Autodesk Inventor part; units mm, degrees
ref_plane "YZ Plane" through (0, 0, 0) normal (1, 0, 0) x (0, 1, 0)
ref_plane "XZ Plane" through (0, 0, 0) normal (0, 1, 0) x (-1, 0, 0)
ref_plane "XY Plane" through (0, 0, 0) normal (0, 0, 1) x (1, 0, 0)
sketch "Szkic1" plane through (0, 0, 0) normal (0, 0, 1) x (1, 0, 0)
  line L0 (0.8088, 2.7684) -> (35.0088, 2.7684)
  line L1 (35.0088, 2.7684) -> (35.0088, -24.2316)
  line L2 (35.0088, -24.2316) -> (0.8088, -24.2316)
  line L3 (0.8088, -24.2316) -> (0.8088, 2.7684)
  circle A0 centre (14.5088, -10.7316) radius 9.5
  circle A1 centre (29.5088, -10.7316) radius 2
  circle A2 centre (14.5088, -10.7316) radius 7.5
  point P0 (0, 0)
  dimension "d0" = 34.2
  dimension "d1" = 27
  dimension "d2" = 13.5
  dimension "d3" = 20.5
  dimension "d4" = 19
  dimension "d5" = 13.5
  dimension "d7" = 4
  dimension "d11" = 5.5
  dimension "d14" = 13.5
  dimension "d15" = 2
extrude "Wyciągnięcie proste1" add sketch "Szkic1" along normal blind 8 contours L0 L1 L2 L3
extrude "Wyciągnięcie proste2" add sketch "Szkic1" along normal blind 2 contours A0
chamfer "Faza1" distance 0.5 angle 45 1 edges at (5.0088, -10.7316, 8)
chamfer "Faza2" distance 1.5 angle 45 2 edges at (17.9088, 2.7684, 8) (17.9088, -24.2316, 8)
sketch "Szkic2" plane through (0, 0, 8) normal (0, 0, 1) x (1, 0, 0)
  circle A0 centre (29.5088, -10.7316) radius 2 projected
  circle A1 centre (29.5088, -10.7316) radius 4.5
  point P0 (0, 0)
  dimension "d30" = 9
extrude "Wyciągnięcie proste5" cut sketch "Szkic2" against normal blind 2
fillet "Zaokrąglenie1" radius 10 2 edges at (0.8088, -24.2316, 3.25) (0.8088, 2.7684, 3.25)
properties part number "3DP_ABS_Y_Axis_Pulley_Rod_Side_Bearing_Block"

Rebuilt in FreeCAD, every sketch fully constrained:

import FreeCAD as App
import Part
import Sketcher
from FreeCAD import Vector
Q = App.Units.Quantity


def edges_at(feature, points):
    """Names of the edges that pass closest to the given points."""
    edges = feature.Shape.Edges
    near = lambda p: min(range(len(edges)), key=lambda i: edges[i].distToShape(Part.Vertex(*p))[0])
    return sorted({f"Edge{near(p) + 1}" for p in points})


def add_polygon(sketch, points):
    """Adds a closed chain of lines whose ends are joined by coincident constraints."""
    first, n = sketch.GeometryCount, len(points)
    for a, b in zip(points, points[1:] + points[:1]):
        sketch.addGeometry(Part.LineSegment(App.Vector(*a, 0), App.Vector(*b, 0)), False)
    for i in range(n):
        sketch.addConstraint(Sketcher.Constraint("Coincident", first + i, 2, first + (i + 1) % n, 1))

doc = App.newDocument("Part")
body = doc.addObject("PartDesign::Body", "Body")

sketch1 = body.newObject("Sketcher::SketchObject", "Sketch")
sketch1.AttachmentSupport = (doc.getObject("XY_Plane"), [""])
sketch1.MapMode = "FlatFace"
add_polygon(sketch1, [(35, 2.8), (0.8, 2.8), (0.8, -24.2), (35, -24.2)])
sketch1.addGeometry(Part.Circle(Vector(14.5, -10.7, 0), Vector(0, 0, 1), 9.5), False)
sketch1.addGeometry(Part.Circle(Vector(29.5, -10.7, 0), Vector(0, 0, 1), 2), False)
sketch1.addConstraint([
    Sketcher.Constraint("Horizontal", 0),
    Sketcher.Constraint("Vertical", 1),
    Sketcher.Constraint("Horizontal", 2),
    Sketcher.Constraint("Vertical", 3),
    Sketcher.Constraint("Horizontal", 4, 3, 5, 3),
    Sketcher.Constraint("Diameter", 4, Q("19 mm")),
    Sketcher.Constraint("Diameter", 5, Q("4 mm")),
    Sketcher.Constraint("DistanceY", 1, 2, 1, 1, Q("27 mm")),
    Sketcher.Constraint("DistanceX", 0, 2, 0, 1, Q("34.2 mm")),
    Sketcher.Constraint("DistanceY", 4, 3, 0, 2, Q("13.5 mm")),
    Sketcher.Constraint("DistanceX", 5, 3, 2, 2, Q("5.5 mm")),
    Sketcher.Constraint("DistanceX", 4, 3, 2, 2, Q("20.5 mm")),
    Sketcher.Constraint("DistanceX", -1, 1, 4, 3, Q("14.5088 mm")),
    Sketcher.Constraint("DistanceY", 4, 3, -1, 1, Q("10.7316 mm")),
])
pad1 = body.newObject("PartDesign::Pad", "Pad")
pad1.Profile = sketch1
pad1.Length = 8

sketch2 = body.newObject("Sketcher::SketchObject", "Sketch001")
sketch2.AttachmentSupport = (doc.getObject("XY_Plane"), [""])
sketch2.MapMode = "FlatFace"
sketch2.addGeometry([
    Part.Circle(Vector(15, -11, 0), Vector(0, 0, 1), 10),
    Part.Circle(Vector(15, -11, 0), Vector(0, 0, 1), 8),
], False)
sketch2.addConstraint([
    Sketcher.Constraint("Coincident", 1, 3, 0, 3),
    Sketcher.Constraint("Diameter", 0, Q("19 mm")),
    Sketcher.Constraint("Diameter", 1, Q("15 mm")),
    Sketcher.Constraint("DistanceX", -1, 1, 0, 3, Q("14.5088 mm")),
    Sketcher.Constraint("DistanceY", 0, 3, -1, 1, Q("10.7316 mm")),
])
pad2 = body.newObject("PartDesign::Pad", "Pad001")
pad2.Profile = sketch2
pad2.Length = 2
doc.recompute()

chamfer = body.newObject("PartDesign::Chamfer", "Chamfer")
chamfer.Base = (pad2, edges_at(pad2, [(5.009, -10.732, 8)]))
chamfer.Size = 0.5
doc.recompute()

chamfer2 = body.newObject("PartDesign::Chamfer", "Chamfer001")
chamfer2.Base = (chamfer, edges_at(chamfer, [(17.909, 2.768, 8), (17.909, -24.232, 8)]))
chamfer2.Size = 1.5

sketch3 = body.newObject("Sketcher::SketchObject", "Sketch002")
sketch3.AttachmentSupport = (doc.getObject("XY_Plane"), [""])
sketch3.MapMode = "FlatFace"
sketch3.AttachmentOffset = App.Placement(Vector(0, 0, 8), App.Rotation())
sketch3.addGeometry([
    Part.Circle(Vector(29.5, -10.7, 0), Vector(0, 0, 1), 4.5),
    Part.Circle(Vector(29.5, -10.7, 0), Vector(0, 0, 1), 2),
], False)
sketch3.addConstraint([
    Sketcher.Constraint("Coincident", 1, 3, 0, 3),
    Sketcher.Constraint("Diameter", 0, Q("9 mm")),
    Sketcher.Constraint("Diameter", 1, Q("4 mm")),
    Sketcher.Constraint("DistanceX", -1, 1, 0, 3, Q("29.5088 mm")),
    Sketcher.Constraint("DistanceY", 0, 3, -1, 1, Q("10.7316 mm")),
])
pocket1 = body.newObject("PartDesign::Pocket", "Pocket")
pocket1.Profile = sketch3
pocket1.Length = 2
doc.recompute()

fillet = body.newObject("PartDesign::Fillet", "Fillet")
fillet.Base = (pocket1, edges_at(pocket1, [(0.809, -24.232, 3.25), (0.809, 2.768, 3.25)]))
fillet.Radius = 10

doc.recompute()
